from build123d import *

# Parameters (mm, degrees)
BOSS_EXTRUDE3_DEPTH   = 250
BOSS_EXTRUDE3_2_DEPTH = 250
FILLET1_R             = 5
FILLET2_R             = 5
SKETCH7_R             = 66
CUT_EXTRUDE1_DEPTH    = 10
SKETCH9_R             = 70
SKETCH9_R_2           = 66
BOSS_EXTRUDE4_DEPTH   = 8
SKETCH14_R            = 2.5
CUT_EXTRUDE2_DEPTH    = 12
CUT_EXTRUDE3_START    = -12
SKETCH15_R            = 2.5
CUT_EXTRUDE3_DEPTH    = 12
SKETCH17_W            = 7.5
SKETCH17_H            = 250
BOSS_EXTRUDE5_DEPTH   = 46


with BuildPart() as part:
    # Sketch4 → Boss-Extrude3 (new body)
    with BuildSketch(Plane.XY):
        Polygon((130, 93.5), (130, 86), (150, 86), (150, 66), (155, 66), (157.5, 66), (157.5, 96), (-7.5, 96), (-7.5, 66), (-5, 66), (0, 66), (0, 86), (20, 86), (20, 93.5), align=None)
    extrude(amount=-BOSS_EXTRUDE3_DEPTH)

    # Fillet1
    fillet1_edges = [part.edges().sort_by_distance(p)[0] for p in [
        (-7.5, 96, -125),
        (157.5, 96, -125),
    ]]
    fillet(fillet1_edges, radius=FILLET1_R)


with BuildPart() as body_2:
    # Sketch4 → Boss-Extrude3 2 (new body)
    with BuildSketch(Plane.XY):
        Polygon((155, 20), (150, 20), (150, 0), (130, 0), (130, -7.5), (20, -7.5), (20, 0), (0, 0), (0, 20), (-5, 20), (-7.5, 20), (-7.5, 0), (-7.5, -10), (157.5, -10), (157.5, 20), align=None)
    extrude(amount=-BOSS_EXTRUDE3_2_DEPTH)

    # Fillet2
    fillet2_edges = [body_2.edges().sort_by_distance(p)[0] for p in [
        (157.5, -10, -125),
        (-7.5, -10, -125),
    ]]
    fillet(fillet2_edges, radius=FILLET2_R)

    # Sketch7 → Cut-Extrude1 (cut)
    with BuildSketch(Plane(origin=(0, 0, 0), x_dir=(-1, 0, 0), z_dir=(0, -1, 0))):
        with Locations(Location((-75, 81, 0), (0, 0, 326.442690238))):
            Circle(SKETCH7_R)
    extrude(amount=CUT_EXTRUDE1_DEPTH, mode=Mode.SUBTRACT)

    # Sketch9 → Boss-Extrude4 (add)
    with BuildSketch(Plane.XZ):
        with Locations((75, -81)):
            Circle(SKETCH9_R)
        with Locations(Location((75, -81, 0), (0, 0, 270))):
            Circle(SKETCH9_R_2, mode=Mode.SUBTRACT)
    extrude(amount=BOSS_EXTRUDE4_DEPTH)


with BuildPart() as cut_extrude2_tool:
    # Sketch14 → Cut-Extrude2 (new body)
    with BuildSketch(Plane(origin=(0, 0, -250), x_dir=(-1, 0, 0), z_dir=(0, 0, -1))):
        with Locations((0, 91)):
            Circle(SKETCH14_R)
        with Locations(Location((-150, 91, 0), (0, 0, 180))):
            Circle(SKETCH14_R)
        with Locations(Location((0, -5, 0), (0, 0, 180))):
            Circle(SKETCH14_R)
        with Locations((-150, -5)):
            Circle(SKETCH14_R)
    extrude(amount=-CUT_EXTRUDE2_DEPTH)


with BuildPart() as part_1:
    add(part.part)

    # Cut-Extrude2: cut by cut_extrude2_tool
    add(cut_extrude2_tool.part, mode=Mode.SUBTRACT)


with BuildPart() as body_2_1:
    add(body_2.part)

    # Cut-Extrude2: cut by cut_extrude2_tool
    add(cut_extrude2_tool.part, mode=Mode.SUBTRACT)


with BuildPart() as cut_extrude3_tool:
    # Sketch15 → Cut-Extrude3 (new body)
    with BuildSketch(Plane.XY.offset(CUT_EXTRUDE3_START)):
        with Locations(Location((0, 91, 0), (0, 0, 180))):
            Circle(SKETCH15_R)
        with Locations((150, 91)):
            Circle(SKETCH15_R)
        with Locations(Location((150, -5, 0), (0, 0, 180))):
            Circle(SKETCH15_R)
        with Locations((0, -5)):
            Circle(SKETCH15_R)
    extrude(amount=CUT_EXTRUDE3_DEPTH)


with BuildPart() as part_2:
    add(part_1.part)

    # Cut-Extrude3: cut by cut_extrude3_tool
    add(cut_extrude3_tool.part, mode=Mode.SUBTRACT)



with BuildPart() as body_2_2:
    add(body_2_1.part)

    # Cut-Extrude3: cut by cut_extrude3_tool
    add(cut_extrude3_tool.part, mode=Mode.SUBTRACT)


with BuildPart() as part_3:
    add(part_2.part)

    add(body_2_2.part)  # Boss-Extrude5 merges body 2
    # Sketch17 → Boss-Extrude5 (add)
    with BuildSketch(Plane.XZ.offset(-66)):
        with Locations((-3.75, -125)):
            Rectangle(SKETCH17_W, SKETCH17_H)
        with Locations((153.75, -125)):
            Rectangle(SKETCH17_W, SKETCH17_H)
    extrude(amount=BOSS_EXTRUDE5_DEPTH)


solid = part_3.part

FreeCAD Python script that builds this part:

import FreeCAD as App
import Part
import Sketcher

V = App.Vector
Q = App.Units.Quantity


def edges_at(feature, points):
    """Names of the edges that pass closest to the given points."""
    edges = feature.Shape.Edges
    near = lambda p: min(range(len(edges)), key=lambda i: edges[i].distToShape(Part.Vertex(*p))[0])
    return sorted({f"Edge{near(p) + 1}" for p in points})

doc = App.newDocument("Part")
body = doc.addObject("PartDesign::Body", "Body")

sketch1 = body.newObject("Sketcher::SketchObject", "Sketch")
sketch1.AttachmentSupport = (doc.getObject("XY_Plane"), [""])
sketch1.MapMode = "FlatFace"
sketch1.addGeometry(Part.LineSegment(V(130, 93.5, 0), V(130, 86, 0)), False)
sketch1.addGeometry(Part.LineSegment(V(130, 86, 0), V(150, 86, 0)), False)
sketch1.addGeometry(Part.LineSegment(V(150, 86, 0), V(150, 66, 0)), False)
sketch1.addGeometry(Part.LineSegment(V(150, 66, 0), V(157.5, 66, 0)), False)
sketch1.addGeometry(Part.LineSegment(V(157.5, 66, 0), V(157.5, 96, 0)), False)
sketch1.addGeometry(Part.LineSegment(V(157.5, 96, 0), V(-7.5, 96, 0)), False)
sketch1.addGeometry(Part.LineSegment(V(-7.5, 96, 0), V(-7.5, 66, 0)), False)
sketch1.addGeometry(Part.LineSegment(V(-7.5, 66, 0), V(0, 66, 0)), False)
sketch1.addGeometry(Part.LineSegment(V(0, 66, 0), V(0, 86, 0)), False)
sketch1.addGeometry(Part.LineSegment(V(0, 86, 0), V(20, 86, 0)), False)
sketch1.addGeometry(Part.LineSegment(V(20, 86, 0), V(20, 93.5, 0)), False)
sketch1.addGeometry(Part.LineSegment(V(20, 93.5, 0), V(130, 93.5, 0)), False)
sketch1.addConstraint(Sketcher.Constraint("Coincident", 0, 2, 1, 1))
sketch1.addConstraint(Sketcher.Constraint("Coincident", 1, 2, 2, 1))
sketch1.addConstraint(Sketcher.Constraint("Coincident", 2, 2, 3, 1))
sketch1.addConstraint(Sketcher.Constraint("Coincident", 3, 2, 4, 1))
sketch1.addConstraint(Sketcher.Constraint("Coincident", 4, 2, 5, 1))
sketch1.addConstraint(Sketcher.Constraint("Coincident", 5, 2, 6, 1))
sketch1.addConstraint(Sketcher.Constraint("Coincident", 6, 2, 7, 1))
sketch1.addConstraint(Sketcher.Constraint("Coincident", 7, 2, 8, 1))
sketch1.addConstraint(Sketcher.Constraint("Coincident", 8, 2, 9, 1))
sketch1.addConstraint(Sketcher.Constraint("Coincident", 9, 2, 10, 1))
sketch1.addConstraint(Sketcher.Constraint("Coincident", 10, 2, 11, 1))
sketch1.addConstraint(Sketcher.Constraint("Coincident", 11, 2, 0, 1))
sketch1.addConstraint(Sketcher.Constraint("Vertical", 0))
sketch1.addConstraint(Sketcher.Constraint("Horizontal", 1))
sketch1.addConstraint(Sketcher.Constraint("Vertical", 2))
sketch1.addConstraint(Sketcher.Constraint("Horizontal", 3))
sketch1.addConstraint(Sketcher.Constraint("Vertical", 4))
sketch1.addConstraint(Sketcher.Constraint("Horizontal", 5))
sketch1.addConstraint(Sketcher.Constraint("Vertical", 6))
sketch1.addConstraint(Sketcher.Constraint("Horizontal", 7))
sketch1.addConstraint(Sketcher.Constraint("Vertical", 8))
sketch1.addConstraint(Sketcher.Constraint("Horizontal", 9))
sketch1.addConstraint(Sketcher.Constraint("Vertical", 10))
sketch1.addConstraint(Sketcher.Constraint("Horizontal", 11))
sketch1.addConstraint(Sketcher.Constraint("PointOnObject", 7, 2, -2))
sketch1.addConstraint(Sketcher.Constraint("Horizontal", 3, 2, 6, 2))
sketch1.addConstraint(Sketcher.Constraint("Horizontal", 1, 2, 8, 2))
sketch1.addConstraint(Sketcher.Constraint("Equal", 3, 7))
sketch1.addConstraint(Sketcher.Constraint("Equal", 1, 9))
sketch1.addConstraint(Sketcher.Constraint("Equal", 7, 0))
sketch1.addConstraint(Sketcher.Constraint("Equal", 9, 2))
sketch1.addConstraint(Sketcher.Constraint("DistanceX", 1, 1, 1, 2, Q("20 mm")))
sketch1.addConstraint(Sketcher.Constraint("DistanceX", 5, 2, 5, 1, Q("165 mm")))
sketch1.addConstraint(Sketcher.Constraint("DistanceX", 11, 1, 11, 2, Q("110 mm")))
sketch1.addConstraint(Sketcher.Constraint("DistanceY", 4, 1, 4, 2, Q("30 mm")))
sketch1.addConstraint(Sketcher.Constraint("DistanceY", -1, 1, 0, 2, Q("86 mm")))
pad1 = body.newObject("PartDesign::Pad", "Pad")
pad1.Profile = sketch1
pad1.Length = 250
pad1.Reversed = True
doc.recompute()

fillet = body.newObject("PartDesign::Fillet", "Fillet")
fillet.Base = (pad1, edges_at(pad1, [(-7.5, 96, -125), (157.5, 96, -125)]))
fillet.Radius = 5
body2 = doc.addObject("PartDesign::Body", "Body001")

sketch2 = body2.newObject("Sketcher::SketchObject", "Sketch001")
sketch2.AttachmentSupport = (doc.getObject("XY_Plane001"), [""])
sketch2.MapMode = "FlatFace"
sketch2.addGeometry(Part.LineSegment(V(150, 20, 0), V(150, 0, 0)), False)
sketch2.addGeometry(Part.LineSegment(V(150, 0, 0), V(130, 0, 0)), False)
sketch2.addGeometry(Part.LineSegment(V(130, 0, 0), V(130, -7.5, 0)), False)
sketch2.addGeometry(Part.LineSegment(V(130, -7.5, 0), V(20, -7.5, 0)), False)
sketch2.addGeometry(Part.LineSegment(V(20, -7.5, 0), V(20, 0, 0)), False)
sketch2.addGeometry(Part.LineSegment(V(20, 0, 0), V(0, 0, 0)), False)
sketch2.addGeometry(Part.LineSegment(V(0, 0, 0), V(0, 20, 0)), False)
sketch2.addGeometry(Part.LineSegment(V(0, 20, 0), V(-7.5, 20, 0)), False)
sketch2.addGeometry(Part.LineSegment(V(-7.5, 20, 0), V(-7.5, -10, 0)), False)
sketch2.addGeometry(Part.LineSegment(V(-7.5, -10, 0), V(157.5, -10, 0)), False)
sketch2.addGeometry(Part.LineSegment(V(157.5, -10, 0), V(157.5, 20, 0)), False)
sketch2.addGeometry(Part.LineSegment(V(157.5, 20, 0), V(150, 20, 0)), False)
sketch2.addConstraint(Sketcher.Constraint("Coincident", 0, 2, 1, 1))
sketch2.addConstraint(Sketcher.Constraint("Coincident", 1, 2, 2, 1))
sketch2.addConstraint(Sketcher.Constraint("Coincident", 2, 2, 3, 1))
sketch2.addConstraint(Sketcher.Constraint("Coincident", 3, 2, 4, 1))
sketch2.addConstraint(Sketcher.Constraint("Coincident", 4, 2, 5, 1))
sketch2.addConstraint(Sketcher.Constraint("Coincident", 5, 2, 6, 1))
sketch2.addConstraint(Sketcher.Constraint("Coincident", 6, 2, 7, 1))
sketch2.addConstraint(Sketcher.Constraint("Coincident", 7, 2, 8, 1))
sketch2.addConstraint(Sketcher.Constraint("Coincident", 8, 2, 9, 1))
sketch2.addConstraint(Sketcher.Constraint("Coincident", 9, 2, 10, 1))
sketch2.addConstraint(Sketcher.Constraint("Coincident", 10, 2, 11, 1))
sketch2.addConstraint(Sketcher.Constraint("Coincident", 11, 2, 0, 1))
sketch2.addConstraint(Sketcher.Constraint("Vertical", 0))
sketch2.addConstraint(Sketcher.Constraint("Horizontal", 1))
sketch2.addConstraint(Sketcher.Constraint("Vertical", 2))
sketch2.addConstraint(Sketcher.Constraint("Horizontal", 3))
sketch2.addConstraint(Sketcher.Constraint("Vertical", 4))
sketch2.addConstraint(Sketcher.Constraint("Horizontal", 5))
sketch2.addConstraint(Sketcher.Constraint("Vertical", 6))
sketch2.addConstraint(Sketcher.Constraint("Horizontal", 7))
sketch2.addConstraint(Sketcher.Constraint("Vertical", 8))
sketch2.addConstraint(Sketcher.Constraint("Horizontal", 9))
sketch2.addConstraint(Sketcher.Constraint("Vertical", 10))
sketch2.addConstraint(Sketcher.Constraint("Horizontal", 11))
sketch2.addConstraint(Sketcher.Constraint("Coincident", 5, 2, -1, 1))
sketch2.addConstraint(Sketcher.Constraint("PointOnObject", 0, 2, -1))
sketch2.addConstraint(Sketcher.Constraint("Horizontal", 7, 2, 10, 2))
sketch2.addConstraint(Sketcher.Constraint("Equal", 1, 5))
sketch2.addConstraint(Sketcher.Constraint("Equal", 7, 11))
sketch2.addConstraint(Sketcher.Constraint("Equal", 5, 0))
sketch2.addConstraint(Sketcher.Constraint("Equal", 11, 2))
sketch2.addConstraint(Sketcher.Constraint("DistanceX", 1, 2, 1, 1, Q("20 mm")))
sketch2.addConstraint(Sketcher.Constraint("DistanceX", 3, 2, 3, 1, Q("110 mm")))
sketch2.addConstraint(Sketcher.Constraint("DistanceX", 9, 1, 9, 2, Q("165 mm")))
sketch2.addConstraint(Sketcher.Constraint("DistanceY", 8, 2, 8, 1, Q("30 mm")))
pad2 = body2.newObject("PartDesign::Pad", "Pad001")
pad2.Profile = sketch2
pad2.Length = 250
pad2.Reversed = True
doc.recompute()

fillet2 = body2.newObject("PartDesign::Fillet", "Fillet001")
fillet2.Base = (pad2, edges_at(pad2, [(157.5, -10, -125), (-7.5, -10, -125)]))
fillet2.Radius = 5

sketch3 = body2.newObject("Sketcher::SketchObject", "Sketch002")
sketch3.AttachmentSupport = (doc.getObject("XZ_Plane001"), [""])
sketch3.MapMode = "FlatFace"
sketch3.addGeometry(Part.Circle(V(75, -81, 0), V(0, 0, 1), 66), False)
sketch3.addConstraint(Sketcher.Constraint("Diameter", 0, Q("132 mm")))
sketch3.addConstraint(Sketcher.Constraint("DistanceX", -1, 1, 0, 3, Q("75 mm")))
sketch3.addConstraint(Sketcher.Constraint("DistanceY", 0, 3, -1, 1, Q("81 mm")))
pocket1 = body2.newObject("PartDesign::Pocket", "Pocket")
pocket1.Profile = sketch3
pocket1.Length = 10
pocket1.Reversed = True

sketch4 = body2.newObject("Sketcher::SketchObject", "Sketch003")
sketch4.AttachmentSupport = (doc.getObject("XZ_Plane001"), [""])
sketch4.MapMode = "FlatFace"
sketch4.addGeometry(Part.Circle(V(75, -81, 0), V(0, 0, 1), 70), False)
sketch4.addGeometry(Part.Circle(V(75, -81, 0), V(0, 0, 1), 66), False)
sketch4.addConstraint(Sketcher.Constraint("Coincident", 1, 3, 0, 3))
sketch4.addConstraint(Sketcher.Constraint("Diameter", 0, Q("140 mm")))
sketch4.addConstraint(Sketcher.Constraint("Diameter", 1, Q("132 mm")))
sketch4.addConstraint(Sketcher.Constraint("DistanceX", -1, 1, 0, 3, Q("75 mm")))
sketch4.addConstraint(Sketcher.Constraint("DistanceY", 0, 3, -1, 1, Q("81 mm")))
pad3 = body2.newObject("PartDesign::Pad", "Pad002")
pad3.Profile = sketch4
pad3.Length = 8
body3 = doc.addObject("PartDesign::Body", "Body002")
body3.AllowCompound = True

sketch5 = body3.newObject("Sketcher::SketchObject", "Sketch004")
sketch5.AttachmentSupport = (doc.getObject("XY_Plane002"), [""])
sketch5.MapMode = "FlatFace"
sketch5.AttachmentOffset = App.Placement(V(0, 0, -250), App.Rotation())
sketch5.addGeometry(Part.Circle(V(0, 91, 0), V(0, 0, 1), 2.5), False)
sketch5.addGeometry(Part.Circle(V(150, 91, 0), V(0, 0, 1), 2.5), False)
sketch5.addGeometry(Part.Circle(V(0, -5, 0), V(0, 0, 1), 2.5), False)
sketch5.addGeometry(Part.Circle(V(150, -5, 0), V(0, 0, 1), 2.5), False)
sketch5.addConstraint(Sketcher.Constraint("Equal", 0, 1))
sketch5.addConstraint(Sketcher.Constraint("Equal", 1, 2))
sketch5.addConstraint(Sketcher.Constraint("Equal", 2, 3))
sketch5.addConstraint(Sketcher.Constraint("PointOnObject", 0, 3, -2))
sketch5.addConstraint(Sketcher.Constraint("PointOnObject", 2, 3, -2))
sketch5.addConstraint(Sketcher.Constraint("Horizontal", 0, 3, 1, 3))
sketch5.addConstraint(Sketcher.Constraint("Horizontal", 2, 3, 3, 3))
sketch5.addConstraint(Sketcher.Constraint("Vertical", 1, 3, 3, 3))
sketch5.addConstraint(Sketcher.Constraint("Diameter", 0, Q("5 mm")))
sketch5.addConstraint(Sketcher.Constraint("DistanceY", -1, 1, 0, 3, Q("91 mm")))
sketch5.addConstraint(Sketcher.Constraint("DistanceX", -1, 1, 1, 3, Q("150 mm")))
sketch5.addConstraint(Sketcher.Constraint("DistanceY", 2, 3, -1, 1, Q("5 mm")))
pad4 = body3.newObject("PartDesign::Pad", "Pad003")
pad4.Profile = sketch5
pad4.Length = 12
doc.recompute()

body4 = doc.addObject("PartDesign::Body", "Body003")
body4.BaseFeature = body3
boolean = body.newObject("PartDesign::Boolean", "Boolean")
boolean.Type = "Cut"
boolean.addObjects([body4])
doc.recompute()

boolean2 = body2.newObject("PartDesign::Boolean", "Boolean001")
boolean2.Type = "Cut"
boolean2.addObjects([body3])
body5 = doc.addObject("PartDesign::Body", "Body004")
body5.AllowCompound = True

sketch6 = body5.newObject("Sketcher::SketchObject", "Sketch005")
sketch6.AttachmentSupport = (doc.getObject("XY_Plane004"), [""])
sketch6.MapMode = "FlatFace"
sketch6.AttachmentOffset = App.Placement(V(0, 0, -12), App.Rotation())
sketch6.addGeometry(Part.Circle(V(0, 91, 0), V(0, 0, 1), 2.5), False)
sketch6.addGeometry(Part.Circle(V(150, 91, 0), V(0, 0, 1), 2.5), False)
sketch6.addGeometry(Part.Circle(V(150, -5, 0), V(0, 0, 1), 2.5), False)
sketch6.addGeometry(Part.Circle(V(0, -5, 0), V(0, 0, 1), 2.5), False)
sketch6.addConstraint(Sketcher.Constraint("Equal", 0, 1))
sketch6.addConstraint(Sketcher.Constraint("Equal", 1, 2))
sketch6.addConstraint(Sketcher.Constraint("Equal", 2, 3))
sketch6.addConstraint(Sketcher.Constraint("PointOnObject", 0, 3, -2))
sketch6.addConstraint(Sketcher.Constraint("PointOnObject", 3, 3, -2))
sketch6.addConstraint(Sketcher.Constraint("Horizontal", 0, 3, 1, 3))
sketch6.addConstraint(Sketcher.Constraint("Horizontal", 2, 3, 3, 3))
sketch6.addConstraint(Sketcher.Constraint("Vertical", 1, 3, 2, 3))
sketch6.addConstraint(Sketcher.Constraint("Diameter", 0, Q("5 mm")))
sketch6.addConstraint(Sketcher.Constraint("DistanceY", -1, 1, 0, 3, Q("91 mm")))
sketch6.addConstraint(Sketcher.Constraint("DistanceX", -1, 1, 1, 3, Q("150 mm")))
sketch6.addConstraint(Sketcher.Constraint("DistanceY", 2, 3, -1, 1, Q("5 mm")))
pad5 = body5.newObject("PartDesign::Pad", "Pad004")
pad5.Profile = sketch6
pad5.Length = 12
doc.recompute()

body6 = doc.addObject("PartDesign::Body", "Body005")
body6.BaseFeature = body5
boolean3 = body.newObject("PartDesign::Boolean", "Boolean002")
boolean3.Type = "Cut"
boolean3.addObjects([body6])
doc.recompute()

boolean4 = body2.newObject("PartDesign::Boolean", "Boolean003")
boolean4.Type = "Cut"
boolean4.addObjects([body5])
body.AllowCompound = True
doc.recompute()

boolean5 = body.newObject("PartDesign::Boolean", "Boolean004")
boolean5.Type = "Fuse"
boolean5.addObjects([body2])

sketch7 = body.newObject("Sketcher::SketchObject", "Sketch006")
sketch7.AttachmentSupport = (doc.getObject("XZ_Plane"), [""])
sketch7.MapMode = "FlatFace"
sketch7.AttachmentOffset = App.Placement(V(0, 0, -66), App.Rotation())
sketch7.addGeometry(Part.LineSegment(V(-7.5, 0, 0), V(-7.5, -250, 0)), False)
sketch7.addGeometry(Part.LineSegment(V(-7.5, -250, 0), V(0, -250, 0)), False)
sketch7.addGeometry(Part.LineSegment(V(0, -250, 0), V(0, 0, 0)), False)
sketch7.addGeometry(Part.LineSegment(V(0, 0, 0), V(-7.5, 0, 0)), False)
sketch7.addGeometry(Part.LineSegment(V(150, 0, 0), V(150, -250, 0)), False)
sketch7.addGeometry(Part.LineSegment(V(150, -250, 0), V(157.5, -250, 0)), False)
sketch7.addGeometry(Part.LineSegment(V(157.5, -250, 0), V(157.5, 0, 0)), False)
sketch7.addGeometry(Part.LineSegment(V(157.5, 0, 0), V(150, 0, 0)), False)
sketch7.addConstraint(Sketcher.Constraint("Coincident", 0, 2, 1, 1))
sketch7.addConstraint(Sketcher.Constraint("Coincident", 1, 2, 2, 1))
sketch7.addConstraint(Sketcher.Constraint("Coincident", 2, 2, 3, 1))
sketch7.addConstraint(Sketcher.Constraint("Coincident", 3, 2, 0, 1))
sketch7.addConstraint(Sketcher.Constraint("Coincident", 4, 2, 5, 1))
sketch7.addConstraint(Sketcher.Constraint("Coincident", 5, 2, 6, 1))
sketch7.addConstraint(Sketcher.Constraint("Coincident", 6, 2, 7, 1))
sketch7.addConstraint(Sketcher.Constraint("Coincident", 7, 2, 4, 1))
sketch7.addConstraint(Sketcher.Constraint("Vertical", 0))
sketch7.addConstraint(Sketcher.Constraint("Horizontal", 1))
sketch7.addConstraint(Sketcher.Constraint("Vertical", 2))
sketch7.addConstraint(Sketcher.Constraint("Horizontal", 3))
sketch7.addConstraint(Sketcher.Constraint("Vertical", 4))
sketch7.addConstraint(Sketcher.Constraint("Horizontal", 5))
sketch7.addConstraint(Sketcher.Constraint("Vertical", 6))
sketch7.addConstraint(Sketcher.Constraint("Horizontal", 7))
sketch7.addConstraint(Sketcher.Constraint("Coincident", 2, 2, -1, 1))
sketch7.addConstraint(Sketcher.Constraint("PointOnObject", 6, 2, -1))
sketch7.addConstraint(Sketcher.Constraint("Horizontal", 1, 2, 4, 2))
sketch7.addConstraint(Sketcher.Constraint("Equal", 3, 5))
sketch7.addConstraint(Sketcher.Constraint("DistanceY", 0, 2, 0, 1, Q("250 mm")))
sketch7.addConstraint(Sketcher.Constraint("DistanceX", 1, 1, 1, 2, Q("7.5 mm")))
sketch7.addConstraint(Sketcher.Constraint("DistanceX", -1, 1, 4, 2, Q("150 mm")))
pad6 = body.newObject("PartDesign::Pad", "Pad005")
pad6.Profile = sketch7
pad6.Length = 46

doc.recompute()
